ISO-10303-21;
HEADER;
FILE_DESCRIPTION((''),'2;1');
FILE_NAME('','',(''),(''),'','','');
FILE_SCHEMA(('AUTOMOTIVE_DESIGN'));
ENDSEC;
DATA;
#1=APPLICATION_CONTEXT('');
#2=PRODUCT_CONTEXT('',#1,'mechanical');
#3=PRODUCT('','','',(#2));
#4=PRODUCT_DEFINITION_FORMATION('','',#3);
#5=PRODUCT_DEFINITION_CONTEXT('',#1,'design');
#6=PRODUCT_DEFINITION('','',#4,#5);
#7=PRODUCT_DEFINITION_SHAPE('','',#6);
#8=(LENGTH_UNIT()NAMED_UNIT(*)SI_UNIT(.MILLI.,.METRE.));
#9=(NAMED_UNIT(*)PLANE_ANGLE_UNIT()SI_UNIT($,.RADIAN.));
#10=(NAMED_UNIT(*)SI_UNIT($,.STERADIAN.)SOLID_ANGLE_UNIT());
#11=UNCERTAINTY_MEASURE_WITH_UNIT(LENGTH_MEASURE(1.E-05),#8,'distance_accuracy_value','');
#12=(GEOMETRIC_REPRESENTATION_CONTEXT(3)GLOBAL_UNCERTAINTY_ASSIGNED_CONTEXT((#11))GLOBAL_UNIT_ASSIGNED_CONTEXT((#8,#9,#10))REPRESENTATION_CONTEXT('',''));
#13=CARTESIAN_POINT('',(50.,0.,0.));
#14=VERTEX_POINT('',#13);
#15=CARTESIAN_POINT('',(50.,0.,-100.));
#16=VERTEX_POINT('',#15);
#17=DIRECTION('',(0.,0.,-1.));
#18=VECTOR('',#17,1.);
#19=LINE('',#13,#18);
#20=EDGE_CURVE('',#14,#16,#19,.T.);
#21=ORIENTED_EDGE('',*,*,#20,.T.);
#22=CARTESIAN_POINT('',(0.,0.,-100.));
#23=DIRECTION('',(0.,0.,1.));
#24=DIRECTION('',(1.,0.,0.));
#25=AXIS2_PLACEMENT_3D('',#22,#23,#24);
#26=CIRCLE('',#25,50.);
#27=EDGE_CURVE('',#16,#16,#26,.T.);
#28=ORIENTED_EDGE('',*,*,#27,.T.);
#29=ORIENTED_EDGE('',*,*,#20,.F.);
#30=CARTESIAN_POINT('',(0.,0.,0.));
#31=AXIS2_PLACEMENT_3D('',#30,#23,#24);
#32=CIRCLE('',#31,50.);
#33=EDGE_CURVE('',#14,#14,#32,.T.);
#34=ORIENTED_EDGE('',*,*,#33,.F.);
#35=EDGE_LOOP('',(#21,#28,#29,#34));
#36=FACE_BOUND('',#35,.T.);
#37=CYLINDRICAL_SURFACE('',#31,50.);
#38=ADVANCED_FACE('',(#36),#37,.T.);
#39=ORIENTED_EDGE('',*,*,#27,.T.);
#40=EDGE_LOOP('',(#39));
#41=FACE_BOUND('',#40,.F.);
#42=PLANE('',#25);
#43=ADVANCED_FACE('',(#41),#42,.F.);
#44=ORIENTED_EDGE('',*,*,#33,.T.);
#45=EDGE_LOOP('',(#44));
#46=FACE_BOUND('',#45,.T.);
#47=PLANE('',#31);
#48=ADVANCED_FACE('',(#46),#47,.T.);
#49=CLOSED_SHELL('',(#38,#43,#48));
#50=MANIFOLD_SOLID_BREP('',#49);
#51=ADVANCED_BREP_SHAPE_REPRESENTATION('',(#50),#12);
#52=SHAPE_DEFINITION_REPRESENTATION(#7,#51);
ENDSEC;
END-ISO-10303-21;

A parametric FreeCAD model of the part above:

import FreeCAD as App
import Part
import Sketcher
from FreeCAD import Vector
Q = App.Units.Quantity

doc = App.newDocument("Part")
body = doc.addObject("PartDesign::Body", "Body")

sketch1 = doc.addObject("Sketcher::SketchObject", "Sketch")
body.addObject(sketch1)
sketch1.AttachmentSupport = (doc.XY_Plane, [""])
sketch1.MapMode = "FlatFace"
sketch1.addGeometry(Part.Circle(Vector(0, 0, 0), Vector(0, 0, 1), 50), False)
sketch1.addConstraint(Sketcher.Constraint("Coincident", 0, 3, -1, 1))
sketch1.addConstraint(Sketcher.Constraint("Diameter", 0, Q("3.937 in")))
pad1 = doc.addObject("PartDesign::Pad", "Pad")
body.addObject(pad1)
pad1.Profile = sketch1
pad1.Length = Q("3.9370079 in")
pad1.Reversed = True

doc.recompute()
